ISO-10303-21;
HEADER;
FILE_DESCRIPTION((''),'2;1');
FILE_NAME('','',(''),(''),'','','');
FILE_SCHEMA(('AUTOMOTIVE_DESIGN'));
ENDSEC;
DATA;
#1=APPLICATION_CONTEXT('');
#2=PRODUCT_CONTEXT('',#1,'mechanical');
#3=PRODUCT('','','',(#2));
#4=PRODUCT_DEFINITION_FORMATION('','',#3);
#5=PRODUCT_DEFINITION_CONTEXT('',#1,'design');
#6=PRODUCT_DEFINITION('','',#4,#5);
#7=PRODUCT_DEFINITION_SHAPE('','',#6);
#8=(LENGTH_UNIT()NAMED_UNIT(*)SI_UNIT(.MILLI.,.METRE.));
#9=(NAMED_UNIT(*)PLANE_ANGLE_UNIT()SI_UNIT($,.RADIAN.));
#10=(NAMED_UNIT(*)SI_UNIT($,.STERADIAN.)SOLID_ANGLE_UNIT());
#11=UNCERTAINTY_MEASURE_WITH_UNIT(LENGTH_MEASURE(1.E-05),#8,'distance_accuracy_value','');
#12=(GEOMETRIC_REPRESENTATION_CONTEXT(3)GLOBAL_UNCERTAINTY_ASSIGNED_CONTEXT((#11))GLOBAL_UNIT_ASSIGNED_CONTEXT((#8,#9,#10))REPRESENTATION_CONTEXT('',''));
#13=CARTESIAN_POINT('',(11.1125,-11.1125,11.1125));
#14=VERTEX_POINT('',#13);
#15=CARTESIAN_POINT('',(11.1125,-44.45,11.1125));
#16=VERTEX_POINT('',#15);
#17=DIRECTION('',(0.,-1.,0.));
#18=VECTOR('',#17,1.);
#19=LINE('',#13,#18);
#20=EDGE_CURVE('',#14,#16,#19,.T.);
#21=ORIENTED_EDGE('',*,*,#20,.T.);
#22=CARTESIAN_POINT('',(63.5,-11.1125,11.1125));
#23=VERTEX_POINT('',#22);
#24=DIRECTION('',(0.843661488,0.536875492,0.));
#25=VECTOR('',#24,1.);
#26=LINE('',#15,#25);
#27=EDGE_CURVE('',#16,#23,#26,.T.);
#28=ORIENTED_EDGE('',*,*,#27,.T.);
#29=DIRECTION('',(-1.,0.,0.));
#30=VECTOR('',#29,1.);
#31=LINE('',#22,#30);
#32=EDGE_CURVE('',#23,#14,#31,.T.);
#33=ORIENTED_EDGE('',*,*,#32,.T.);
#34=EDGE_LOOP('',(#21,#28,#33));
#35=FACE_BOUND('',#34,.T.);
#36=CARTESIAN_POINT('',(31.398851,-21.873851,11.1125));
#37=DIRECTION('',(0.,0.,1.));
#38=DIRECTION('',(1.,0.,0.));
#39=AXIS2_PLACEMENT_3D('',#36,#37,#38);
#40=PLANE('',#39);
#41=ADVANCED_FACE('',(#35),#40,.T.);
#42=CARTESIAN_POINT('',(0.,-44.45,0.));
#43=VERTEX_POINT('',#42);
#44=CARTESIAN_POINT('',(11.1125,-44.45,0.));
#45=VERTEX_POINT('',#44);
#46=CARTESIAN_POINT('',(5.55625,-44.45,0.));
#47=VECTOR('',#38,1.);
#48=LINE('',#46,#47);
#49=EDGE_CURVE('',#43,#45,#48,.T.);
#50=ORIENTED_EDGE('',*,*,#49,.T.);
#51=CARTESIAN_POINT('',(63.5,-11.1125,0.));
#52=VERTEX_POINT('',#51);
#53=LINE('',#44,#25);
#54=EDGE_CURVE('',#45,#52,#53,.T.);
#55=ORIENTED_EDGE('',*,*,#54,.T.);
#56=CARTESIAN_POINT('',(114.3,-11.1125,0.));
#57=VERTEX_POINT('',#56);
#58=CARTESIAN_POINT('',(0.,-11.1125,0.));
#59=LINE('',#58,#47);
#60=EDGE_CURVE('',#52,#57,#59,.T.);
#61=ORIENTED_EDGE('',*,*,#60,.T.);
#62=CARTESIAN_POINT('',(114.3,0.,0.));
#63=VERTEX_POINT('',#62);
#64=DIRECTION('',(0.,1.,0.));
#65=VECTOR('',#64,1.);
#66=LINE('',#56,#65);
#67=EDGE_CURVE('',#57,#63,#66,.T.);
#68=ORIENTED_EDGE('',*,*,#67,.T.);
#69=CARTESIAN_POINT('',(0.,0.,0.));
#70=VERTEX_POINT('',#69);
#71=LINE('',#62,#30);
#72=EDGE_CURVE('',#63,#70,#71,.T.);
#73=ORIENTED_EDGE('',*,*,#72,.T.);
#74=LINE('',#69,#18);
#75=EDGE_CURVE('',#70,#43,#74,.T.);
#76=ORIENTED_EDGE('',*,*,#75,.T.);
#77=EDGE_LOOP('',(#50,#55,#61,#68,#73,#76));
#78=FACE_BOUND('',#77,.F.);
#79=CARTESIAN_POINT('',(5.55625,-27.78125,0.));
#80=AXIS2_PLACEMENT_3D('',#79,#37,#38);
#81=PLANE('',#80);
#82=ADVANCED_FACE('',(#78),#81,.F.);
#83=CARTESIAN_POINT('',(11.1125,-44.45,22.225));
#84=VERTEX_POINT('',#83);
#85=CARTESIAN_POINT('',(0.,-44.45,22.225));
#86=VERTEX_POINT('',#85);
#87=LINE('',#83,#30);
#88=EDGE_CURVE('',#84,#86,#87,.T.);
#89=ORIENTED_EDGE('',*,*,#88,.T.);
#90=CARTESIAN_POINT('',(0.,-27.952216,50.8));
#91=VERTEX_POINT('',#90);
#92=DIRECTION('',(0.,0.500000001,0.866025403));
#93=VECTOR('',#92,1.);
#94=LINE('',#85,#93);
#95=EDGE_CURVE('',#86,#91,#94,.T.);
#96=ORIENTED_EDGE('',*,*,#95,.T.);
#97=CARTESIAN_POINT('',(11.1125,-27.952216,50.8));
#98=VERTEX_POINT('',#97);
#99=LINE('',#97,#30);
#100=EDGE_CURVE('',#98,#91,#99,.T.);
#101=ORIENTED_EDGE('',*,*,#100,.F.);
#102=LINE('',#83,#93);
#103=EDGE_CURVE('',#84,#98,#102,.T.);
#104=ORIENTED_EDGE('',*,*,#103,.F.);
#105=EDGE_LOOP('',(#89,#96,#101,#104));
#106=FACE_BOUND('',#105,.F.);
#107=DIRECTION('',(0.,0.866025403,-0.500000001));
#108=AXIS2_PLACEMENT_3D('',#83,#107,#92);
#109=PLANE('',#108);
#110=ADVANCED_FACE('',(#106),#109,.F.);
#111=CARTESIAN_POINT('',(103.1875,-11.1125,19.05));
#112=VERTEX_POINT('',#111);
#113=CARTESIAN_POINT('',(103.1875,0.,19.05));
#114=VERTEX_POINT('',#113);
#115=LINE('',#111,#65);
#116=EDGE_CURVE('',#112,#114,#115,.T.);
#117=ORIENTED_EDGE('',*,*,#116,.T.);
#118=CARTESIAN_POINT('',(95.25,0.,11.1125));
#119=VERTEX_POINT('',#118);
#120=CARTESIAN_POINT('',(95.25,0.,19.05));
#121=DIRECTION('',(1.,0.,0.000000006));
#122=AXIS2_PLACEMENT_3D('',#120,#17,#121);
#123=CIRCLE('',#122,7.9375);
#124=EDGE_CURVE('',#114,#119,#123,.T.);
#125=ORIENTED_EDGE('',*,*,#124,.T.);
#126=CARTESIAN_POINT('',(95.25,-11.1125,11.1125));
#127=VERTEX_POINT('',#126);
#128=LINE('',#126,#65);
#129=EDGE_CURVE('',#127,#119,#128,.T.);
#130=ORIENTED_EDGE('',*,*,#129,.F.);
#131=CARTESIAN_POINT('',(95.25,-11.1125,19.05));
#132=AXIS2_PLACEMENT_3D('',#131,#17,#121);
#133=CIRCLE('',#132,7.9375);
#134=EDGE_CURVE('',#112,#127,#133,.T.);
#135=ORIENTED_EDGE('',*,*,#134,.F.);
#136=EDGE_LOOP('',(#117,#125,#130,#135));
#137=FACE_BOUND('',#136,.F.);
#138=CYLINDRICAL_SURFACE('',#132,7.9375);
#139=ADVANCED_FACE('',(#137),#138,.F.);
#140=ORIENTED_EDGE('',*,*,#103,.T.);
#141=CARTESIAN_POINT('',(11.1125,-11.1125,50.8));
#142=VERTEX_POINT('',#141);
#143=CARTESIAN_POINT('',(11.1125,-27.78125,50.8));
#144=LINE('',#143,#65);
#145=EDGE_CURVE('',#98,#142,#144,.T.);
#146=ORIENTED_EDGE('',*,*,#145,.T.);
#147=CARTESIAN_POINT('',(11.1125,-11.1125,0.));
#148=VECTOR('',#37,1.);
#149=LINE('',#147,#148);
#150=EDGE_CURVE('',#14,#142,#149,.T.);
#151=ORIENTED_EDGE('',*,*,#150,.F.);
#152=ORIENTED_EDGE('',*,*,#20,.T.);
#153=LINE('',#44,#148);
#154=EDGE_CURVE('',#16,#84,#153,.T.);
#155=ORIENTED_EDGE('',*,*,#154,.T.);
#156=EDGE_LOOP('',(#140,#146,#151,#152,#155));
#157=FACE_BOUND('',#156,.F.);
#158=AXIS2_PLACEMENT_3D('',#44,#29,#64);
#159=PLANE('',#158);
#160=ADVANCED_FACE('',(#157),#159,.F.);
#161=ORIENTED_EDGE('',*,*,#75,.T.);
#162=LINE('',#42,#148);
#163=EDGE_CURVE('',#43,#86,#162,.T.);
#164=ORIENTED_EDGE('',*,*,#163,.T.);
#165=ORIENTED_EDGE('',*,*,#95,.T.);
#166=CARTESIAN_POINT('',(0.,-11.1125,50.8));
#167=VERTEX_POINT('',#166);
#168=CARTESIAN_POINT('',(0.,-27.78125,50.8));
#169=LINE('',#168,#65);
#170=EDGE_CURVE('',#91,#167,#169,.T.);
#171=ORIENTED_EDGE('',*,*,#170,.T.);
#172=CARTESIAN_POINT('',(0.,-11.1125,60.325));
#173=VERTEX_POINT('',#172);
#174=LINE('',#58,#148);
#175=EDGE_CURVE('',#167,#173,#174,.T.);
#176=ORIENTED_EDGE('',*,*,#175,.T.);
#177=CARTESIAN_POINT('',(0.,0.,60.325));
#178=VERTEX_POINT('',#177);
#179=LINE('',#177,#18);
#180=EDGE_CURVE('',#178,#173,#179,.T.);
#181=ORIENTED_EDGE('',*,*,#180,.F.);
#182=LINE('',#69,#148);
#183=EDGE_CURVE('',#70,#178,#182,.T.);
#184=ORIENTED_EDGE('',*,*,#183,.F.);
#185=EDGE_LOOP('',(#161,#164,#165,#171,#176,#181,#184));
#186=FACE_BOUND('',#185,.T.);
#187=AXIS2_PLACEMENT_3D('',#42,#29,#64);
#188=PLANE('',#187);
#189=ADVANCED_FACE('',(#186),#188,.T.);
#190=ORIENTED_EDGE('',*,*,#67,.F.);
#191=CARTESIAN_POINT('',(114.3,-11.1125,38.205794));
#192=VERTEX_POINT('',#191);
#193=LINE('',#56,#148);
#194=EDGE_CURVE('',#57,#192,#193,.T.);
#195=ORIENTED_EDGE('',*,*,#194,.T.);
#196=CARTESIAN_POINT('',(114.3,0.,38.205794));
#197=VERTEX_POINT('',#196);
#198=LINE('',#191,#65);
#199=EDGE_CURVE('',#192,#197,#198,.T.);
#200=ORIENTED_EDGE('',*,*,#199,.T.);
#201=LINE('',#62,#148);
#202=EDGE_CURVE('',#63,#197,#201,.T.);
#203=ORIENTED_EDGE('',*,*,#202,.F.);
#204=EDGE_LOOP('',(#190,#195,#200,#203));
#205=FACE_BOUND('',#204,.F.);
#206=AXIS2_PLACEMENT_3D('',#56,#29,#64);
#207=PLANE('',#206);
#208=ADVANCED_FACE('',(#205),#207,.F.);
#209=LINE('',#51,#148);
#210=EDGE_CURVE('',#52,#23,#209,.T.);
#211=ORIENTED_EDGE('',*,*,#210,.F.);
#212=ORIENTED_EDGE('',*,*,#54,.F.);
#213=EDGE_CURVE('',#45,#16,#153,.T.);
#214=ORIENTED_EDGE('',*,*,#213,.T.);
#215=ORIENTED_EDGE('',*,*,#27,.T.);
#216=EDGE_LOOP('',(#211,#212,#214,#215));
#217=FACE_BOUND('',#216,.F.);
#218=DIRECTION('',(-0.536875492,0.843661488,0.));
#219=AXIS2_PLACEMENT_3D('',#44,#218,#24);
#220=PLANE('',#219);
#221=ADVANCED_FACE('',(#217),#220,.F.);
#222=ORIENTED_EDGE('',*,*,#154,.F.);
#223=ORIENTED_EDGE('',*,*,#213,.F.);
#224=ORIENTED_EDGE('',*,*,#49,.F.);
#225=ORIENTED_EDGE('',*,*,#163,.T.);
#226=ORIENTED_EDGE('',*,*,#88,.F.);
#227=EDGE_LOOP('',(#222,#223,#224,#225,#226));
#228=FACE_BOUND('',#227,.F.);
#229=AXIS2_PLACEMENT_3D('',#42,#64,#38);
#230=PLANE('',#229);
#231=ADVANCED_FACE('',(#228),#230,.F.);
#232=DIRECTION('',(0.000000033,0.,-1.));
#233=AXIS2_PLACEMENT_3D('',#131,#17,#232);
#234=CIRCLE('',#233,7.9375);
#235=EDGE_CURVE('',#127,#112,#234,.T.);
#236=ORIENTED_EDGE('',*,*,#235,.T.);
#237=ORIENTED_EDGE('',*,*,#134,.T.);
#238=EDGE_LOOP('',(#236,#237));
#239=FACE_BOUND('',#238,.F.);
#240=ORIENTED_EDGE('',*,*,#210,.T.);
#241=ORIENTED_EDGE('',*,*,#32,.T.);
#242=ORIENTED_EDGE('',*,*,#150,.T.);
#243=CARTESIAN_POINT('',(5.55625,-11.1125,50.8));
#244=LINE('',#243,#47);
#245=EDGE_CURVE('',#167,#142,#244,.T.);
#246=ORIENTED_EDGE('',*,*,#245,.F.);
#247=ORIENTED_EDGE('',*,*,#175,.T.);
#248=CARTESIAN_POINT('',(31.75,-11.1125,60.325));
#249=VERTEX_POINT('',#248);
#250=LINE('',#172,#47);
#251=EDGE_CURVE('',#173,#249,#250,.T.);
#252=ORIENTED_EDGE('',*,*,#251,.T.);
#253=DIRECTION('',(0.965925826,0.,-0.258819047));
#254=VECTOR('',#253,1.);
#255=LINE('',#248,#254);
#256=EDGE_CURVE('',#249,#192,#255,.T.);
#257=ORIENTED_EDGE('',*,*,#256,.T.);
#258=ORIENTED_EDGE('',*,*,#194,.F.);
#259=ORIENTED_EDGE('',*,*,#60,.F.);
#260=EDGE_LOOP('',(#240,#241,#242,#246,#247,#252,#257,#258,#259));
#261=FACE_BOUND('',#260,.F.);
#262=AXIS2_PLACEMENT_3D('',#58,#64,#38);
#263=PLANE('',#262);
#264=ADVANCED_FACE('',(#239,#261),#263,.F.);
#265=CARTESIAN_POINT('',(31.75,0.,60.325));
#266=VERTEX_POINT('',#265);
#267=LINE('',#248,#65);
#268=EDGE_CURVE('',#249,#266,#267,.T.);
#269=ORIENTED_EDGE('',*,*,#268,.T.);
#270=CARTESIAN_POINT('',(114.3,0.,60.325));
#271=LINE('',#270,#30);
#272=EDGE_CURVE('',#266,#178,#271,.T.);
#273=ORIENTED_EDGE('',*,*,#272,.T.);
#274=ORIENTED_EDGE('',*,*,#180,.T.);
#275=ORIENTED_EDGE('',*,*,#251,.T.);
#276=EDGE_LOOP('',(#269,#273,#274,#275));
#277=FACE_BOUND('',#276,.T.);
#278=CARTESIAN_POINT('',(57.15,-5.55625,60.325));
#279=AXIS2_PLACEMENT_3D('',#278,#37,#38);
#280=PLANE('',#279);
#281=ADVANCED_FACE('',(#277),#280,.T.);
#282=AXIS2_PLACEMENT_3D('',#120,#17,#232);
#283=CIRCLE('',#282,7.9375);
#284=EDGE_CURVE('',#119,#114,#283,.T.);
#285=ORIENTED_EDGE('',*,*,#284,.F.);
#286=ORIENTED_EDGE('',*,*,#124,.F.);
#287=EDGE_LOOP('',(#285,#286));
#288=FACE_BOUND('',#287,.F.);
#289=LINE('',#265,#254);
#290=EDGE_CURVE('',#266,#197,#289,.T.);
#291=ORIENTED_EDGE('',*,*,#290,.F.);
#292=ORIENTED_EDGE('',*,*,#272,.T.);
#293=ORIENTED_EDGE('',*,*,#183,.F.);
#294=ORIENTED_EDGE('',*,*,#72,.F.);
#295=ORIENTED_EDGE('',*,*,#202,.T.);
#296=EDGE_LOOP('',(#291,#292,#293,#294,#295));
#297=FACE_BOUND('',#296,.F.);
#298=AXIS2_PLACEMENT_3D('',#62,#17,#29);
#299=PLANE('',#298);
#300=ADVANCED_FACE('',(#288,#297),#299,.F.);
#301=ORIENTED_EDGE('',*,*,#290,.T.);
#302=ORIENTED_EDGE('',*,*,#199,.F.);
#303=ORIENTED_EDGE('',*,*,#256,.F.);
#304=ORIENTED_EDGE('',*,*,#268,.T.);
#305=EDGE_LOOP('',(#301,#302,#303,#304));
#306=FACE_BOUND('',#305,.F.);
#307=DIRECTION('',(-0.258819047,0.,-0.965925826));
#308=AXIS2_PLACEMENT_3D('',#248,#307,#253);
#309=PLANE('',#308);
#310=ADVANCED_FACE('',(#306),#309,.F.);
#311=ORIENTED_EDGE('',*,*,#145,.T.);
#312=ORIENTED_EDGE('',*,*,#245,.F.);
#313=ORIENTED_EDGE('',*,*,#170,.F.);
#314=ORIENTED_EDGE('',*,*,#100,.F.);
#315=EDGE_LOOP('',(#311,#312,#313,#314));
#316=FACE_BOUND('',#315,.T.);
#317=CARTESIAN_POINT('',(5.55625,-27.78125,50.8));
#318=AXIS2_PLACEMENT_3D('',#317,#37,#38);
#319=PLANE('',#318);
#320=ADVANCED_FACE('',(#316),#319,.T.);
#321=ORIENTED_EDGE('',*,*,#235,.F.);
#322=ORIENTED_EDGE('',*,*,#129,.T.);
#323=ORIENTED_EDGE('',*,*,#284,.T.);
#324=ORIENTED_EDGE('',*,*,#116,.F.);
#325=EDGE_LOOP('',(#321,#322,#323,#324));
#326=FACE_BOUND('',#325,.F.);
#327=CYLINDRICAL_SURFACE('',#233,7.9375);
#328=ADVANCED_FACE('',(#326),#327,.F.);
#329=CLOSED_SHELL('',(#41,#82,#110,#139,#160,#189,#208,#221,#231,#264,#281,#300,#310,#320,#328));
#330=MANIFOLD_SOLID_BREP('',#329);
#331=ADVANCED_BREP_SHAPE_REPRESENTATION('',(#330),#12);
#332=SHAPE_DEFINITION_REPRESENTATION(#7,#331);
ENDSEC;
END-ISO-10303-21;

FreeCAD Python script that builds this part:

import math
import FreeCAD as App
import Part
import Sketcher
from FreeCAD import Vector
Q = App.Units.Quantity


def add_polygon(sketch, points):
    """Adds a closed chain of lines whose ends are joined by coincident constraints."""
    first, n = sketch.GeometryCount, len(points)
    for a, b in zip(points, points[1:] + points[:1]):
        sketch.addGeometry(Part.LineSegment(App.Vector(*a, 0), App.Vector(*b, 0)), False)
    for i in range(n):
        sketch.addConstraint(Sketcher.Constraint("Coincident", first + i, 2, first + (i + 1) % n, 1))

doc = App.newDocument("Part")
params = doc.addObject("Spreadsheet::Sheet", "Params")
for row, (alias, value) in enumerate([
    ("sketch1_width", "4.5 in"),
    ("sketch1_height", "0.4375 in"),
    ("pad1_length", "2.375 in"),
    ("sketch2_width", "2.0625 in"),
    ("sketch2_height", "1.3125 in"),
    ("pad2_length", "0.4375 in"),
    ("sketch3_width", "3.25 in"),
    ("pocket1_length", "0.4375 in"),
    ("sketch4_width", "0.4375 in"),
    ("sketch4_height", "1.3125 in"),
    ("pad3_length", "2 in"),
    ("sketch5_radius", "0.3125 in"),
    ("pocket2_length", "1 in"),
    ("sketch6_height", "1.125 in"),
    ("pocket3_length", "0.4375 in"),
], start=1):
    params.set(f"A{row}", alias)
    params.set(f"B{row}", "=" + value)
    params.setAlias(f"B{row}", alias)

body = doc.addObject("PartDesign::Body", "Body")

# Sketch on XY plane
sketch1 = body.newObject("Sketcher::SketchObject", "Sketch")
sketch1.AttachmentSupport = (doc.getObject("XY_Plane"), [""])
sketch1.MapMode = "FlatFace"
add_polygon(sketch1, [(114.3, 0), (0, 0), (0, -11.1125), (114.3, -11.1125)])  # lines 0-3
sketch1.addConstraint([
    Sketcher.Constraint("Horizontal", 0),
    Sketcher.Constraint("Vertical", 1),
    Sketcher.Constraint("Horizontal", 2),
    Sketcher.Constraint("Vertical", 3),
    Sketcher.Constraint("Coincident", 0, 2, -1, 1),
    Sketcher.Constraint("DistanceX", 0, 2, 0, 1, Q("4.5 in")),
    Sketcher.Constraint("DistanceY", 1, 2, 1, 1, Q("0.4375 in")),
])
sketch1.setExpression("Constraints[9]", "Params.sketch1_width")
sketch1.setExpression("Constraints[10]", "Params.sketch1_height")
pad1 = body.newObject("PartDesign::Pad", "Pad")
pad1.Profile = sketch1
pad1.setExpression("Length", "Params.pad1_length")

# Sketch on XY plane
sketch2 = body.newObject("Sketcher::SketchObject", "Sketch001")
sketch2.AttachmentSupport = (doc.getObject("XY_Plane"), [""])
sketch2.MapMode = "FlatFace"
add_polygon(sketch2, [(63.5, -11.1125), (11.1125, -11.1125), (11.1125, -44.45)])  # lines 0-2
sketch2.addConstraint([
    Sketcher.Constraint("Horizontal", 0),
    Sketcher.Constraint("Vertical", 1),
    Sketcher.Constraint("DistanceX", -1, 1, 2, 2, Q("2.5 in")),
    Sketcher.Constraint("DistanceX", 0, 2, 0, 1, Q("2.0625 in")),
    Sketcher.Constraint("DistanceY", 1, 2, 1, 1, Q("1.3125 in")),
    Sketcher.Constraint("DistanceY", 1, 2, -1, 1, Q("1.75 in")),
])
sketch2.setExpression("Constraints[6]", "Params.sketch2_width")
sketch2.setExpression("Constraints[7]", "Params.sketch2_height")
pad2 = body.newObject("PartDesign::Pad", "Pad001")
pad2.Profile = sketch2
pad2.setExpression("Length", "Params.pad2_length")

# Sketch on XZ plane
sketch3 = body.newObject("Sketcher::SketchObject", "Sketch002")
sketch3.AttachmentSupport = (doc.getObject("XZ_Plane"), [""])
sketch3.MapMode = "FlatFace"
sketch3.AttachmentOffset = App.Placement(Vector(0, 0, 0.4375 * 25.4), App.Rotation())
add_polygon(sketch3, [(114.3, 60.325), (31.75, 60.325), (114.3, 38.205794)])  # lines 0-2
sketch3.addConstraint([
    Sketcher.Constraint("Horizontal", 0),
    Sketcher.Constraint("Vertical", 2),
    Sketcher.Constraint("Angle", 1, Q("-15 deg")),
    Sketcher.Constraint("DistanceX", 0, 2, 0, 1, Q("3.25 in")),
    Sketcher.Constraint("DistanceX", -1, 1, 1, 2, Q("4.5 in")),
    Sketcher.Constraint("DistanceY", -1, 1, 0, 2, Q("2.375 in")),
])
sketch3.setExpression("Constraints[6]", "Params.sketch3_width")
pocket1 = body.newObject("PartDesign::Pocket", "Pocket")
pocket1.Profile = sketch3
pocket1.setExpression("Length", "Params.pocket1_length")

# Sketch on XY plane
sketch4 = body.newObject("Sketcher::SketchObject", "Sketch003")
sketch4.AttachmentSupport = (doc.getObject("XY_Plane"), [""])
sketch4.MapMode = "FlatFace"
add_polygon(sketch4, [(0, -11.1125), (0, -44.45), (11.1125, -44.45), (11.1125, -11.1125)])  # lines 0-3
sketch4.addConstraint([
    Sketcher.Constraint("Vertical", 0),
    Sketcher.Constraint("Horizontal", 1),
    Sketcher.Constraint("Vertical", 2),
    Sketcher.Constraint("Horizontal", 3),
    Sketcher.Constraint("PointOnObject", 0, 2, -2),
    Sketcher.Constraint("DistanceX", 1, 1, 1, 2, Q("0.4375 in")),
    Sketcher.Constraint("DistanceY", 0, 2, 0, 1, Q("1.3125 in")),
    Sketcher.Constraint("DistanceY", 0, 2, -1, 1, Q("1.75 in")),
])
sketch4.setExpression("Constraints[9]", "Params.sketch4_width")
sketch4.setExpression("Constraints[10]", "Params.sketch4_height")
pad3 = body.newObject("PartDesign::Pad", "Pad002")
pad3.Profile = sketch4
pad3.setExpression("Length", "Params.pad3_length")

# Sketch on XZ plane
sketch5 = body.newObject("Sketcher::SketchObject", "Sketch004")
sketch5.AttachmentSupport = (doc.getObject("XZ_Plane"), [""])
sketch5.MapMode = "FlatFace"
sketch5.AttachmentOffset = App.Placement(Vector(0, 0, 0.4375 * 25.4), App.Rotation())
sketch5.addGeometry([
    Part.ArcOfCircle(Part.Circle(Vector(95.25, 19.05, 0), Vector(0, 0, 1), 7.9375), math.radians(0), math.radians(270)),
    Part.ArcOfCircle(Part.Circle(Vector(95.25, 19.05, 0), Vector(0, 0, 1), 7.9375), math.radians(-89.999998), math.radians(-0.000002)),
], False)
sketch5.addConstraint([
    Sketcher.Constraint("Tangent", 0, 1, 1, 2),
    Sketcher.Constraint("Coincident", 1, 1, 0, 2),
    Sketcher.Constraint("Horizontal", 1, 3, 0, 1),
    Sketcher.Constraint("Vertical", 0, 3, 1, 1),
    Sketcher.Constraint("Radius", 0, Q("0.3125 in")),
    Sketcher.Constraint("DistanceX", -1, 1, 0, 3, Q("3.75 in")),
    Sketcher.Constraint("DistanceY", -1, 1, 0, 3, Q("0.75 in")),
])
sketch5.setExpression("Constraints[4]", "Params.sketch5_radius")
pocket2 = body.newObject("PartDesign::Pocket", "Pocket001")
pocket2.Profile = sketch5
pocket2.setExpression("Length", "Params.pocket2_length")

# Sketch on YZ plane
sketch6 = body.newObject("Sketcher::SketchObject", "Sketch005")
sketch6.AttachmentSupport = (doc.getObject("YZ_Plane"), [""])
sketch6.MapMode = "FlatFace"
sketch6.AttachmentOffset = App.Placement(Vector(0, 0, 0.4375 * 25.4), App.Rotation())
add_polygon(sketch6, [(-44.45, 50.8), (-44.45, 22.225), (-27.952216, 50.8)])  # lines 0-2
sketch6.addConstraint([
    Sketcher.Constraint("Vertical", 0),
    Sketcher.Constraint("Horizontal", 2),
    Sketcher.Constraint("DistanceY", -1, 1, 1, 2, Q("2 in")),
    Sketcher.Constraint("Angle", 1, Q("60 deg")),
    Sketcher.Constraint("DistanceY", 0, 2, 0, 1, Q("1.125 in")),
    Sketcher.Constraint("DistanceX", 0, 2, -1, 1, Q("1.75 in")),
])
sketch6.setExpression("Constraints[7]", "Params.sketch6_height")
pocket3 = body.newObject("PartDesign::Pocket", "Pocket002")
pocket3.Profile = sketch6
pocket3.setExpression("Length", "Params.pocket3_length")

doc.recompute()
